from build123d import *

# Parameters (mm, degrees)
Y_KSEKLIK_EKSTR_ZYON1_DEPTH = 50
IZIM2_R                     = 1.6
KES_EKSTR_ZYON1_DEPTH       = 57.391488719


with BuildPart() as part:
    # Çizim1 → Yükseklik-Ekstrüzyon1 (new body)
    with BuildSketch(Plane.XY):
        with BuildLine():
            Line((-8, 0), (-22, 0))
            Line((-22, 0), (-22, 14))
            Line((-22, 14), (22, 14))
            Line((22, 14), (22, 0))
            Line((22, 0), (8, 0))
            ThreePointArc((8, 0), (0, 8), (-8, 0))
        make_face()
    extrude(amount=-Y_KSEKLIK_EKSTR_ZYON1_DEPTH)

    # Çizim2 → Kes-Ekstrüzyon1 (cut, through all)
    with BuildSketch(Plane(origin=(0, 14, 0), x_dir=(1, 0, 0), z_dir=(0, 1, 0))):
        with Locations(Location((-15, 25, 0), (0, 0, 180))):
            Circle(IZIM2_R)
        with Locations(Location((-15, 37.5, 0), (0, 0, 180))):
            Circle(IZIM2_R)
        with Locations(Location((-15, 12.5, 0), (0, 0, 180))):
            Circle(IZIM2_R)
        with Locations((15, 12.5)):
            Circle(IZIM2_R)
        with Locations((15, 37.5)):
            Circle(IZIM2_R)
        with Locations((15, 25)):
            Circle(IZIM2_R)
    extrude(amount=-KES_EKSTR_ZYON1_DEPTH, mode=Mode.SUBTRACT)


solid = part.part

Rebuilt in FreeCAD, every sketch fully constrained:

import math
import FreeCAD as App
import Part
import Sketcher
from FreeCAD import Vector

doc = App.newDocument("Part")
params = doc.addObject("Spreadsheet::Sheet", "Params")
for row, (alias, value) in enumerate([
    ("sketch1_radius", "8 mm"),
    ("sketch1_width", "14 mm"),
    ("pad1_length", "50 mm"),
    ("sketch2_diameter", "3.2 mm"),
], start=1):
    params.set(f"A{row}", alias)
    params.set(f"B{row}", "=" + value)
    params.setAlias(f"B{row}", alias)

body = doc.addObject("PartDesign::Body", "Body")

# Sketch on XY plane
sketch1 = body.newObject("Sketcher::SketchObject", "Sketch")
sketch1.AttachmentSupport = (doc.getObject("XY_Plane"), [""])
sketch1.MapMode = "FlatFace"
sketch1.addGeometry([
    Part.LineSegment(Vector(-22, 0, 0), Vector(-8, 0, 0)),  # 0
    Part.ArcOfCircle(Part.Circle(Vector(0, 0, 0), Vector(0, 0, 1), 8), math.radians(0), math.radians(180)),  # 1
    Part.LineSegment(Vector(8, 0, 0), Vector(22, 0, 0)),  # 2
    Part.LineSegment(Vector(22, 0, 0), Vector(22, 14, 0)),  # 3
    Part.LineSegment(Vector(22, 14, 0), Vector(-22, 14, 0)),  # 4
    Part.LineSegment(Vector(-22, 14, 0), Vector(-22, 0, 0)),  # 5
], False)
sketch1.addConstraint([
    Sketcher.Constraint("Coincident", 0, 2, 1, 2),
    Sketcher.Constraint("Coincident", 1, 1, 2, 1),
    Sketcher.Constraint("Coincident", 2, 2, 3, 1),
    Sketcher.Constraint("Coincident", 3, 2, 4, 1),
    Sketcher.Constraint("Coincident", 4, 2, 5, 1),
    Sketcher.Constraint("Coincident", 5, 2, 0, 1),
    Sketcher.Constraint("Horizontal", 0),
    Sketcher.Constraint("Horizontal", 2),
    Sketcher.Constraint("Vertical", 3),
    Sketcher.Constraint("Horizontal", 4),
    Sketcher.Constraint("Vertical", 5),
    Sketcher.Constraint("Coincident", 1, 3, -1, 1),
    Sketcher.Constraint("Symmetric", 2, 2, 5, 2, -1, 1),
    Sketcher.Constraint("PointOnObject", 0, 2, -1),
    Sketcher.Constraint("Equal", 2, 3),
    Sketcher.Constraint("Radius", 1, 8.0),
    Sketcher.Constraint("DistanceX", 0, 1, 0, 2, 14.0),
])
sketch1.setExpression("Constraints[15]", "Params.sketch1_radius")
sketch1.setExpression("Constraints[16]", "Params.sketch1_width")
pad1 = body.newObject("PartDesign::Pad", "Pad")
pad1.Profile = sketch1
pad1.setExpression("Length", "Params.pad1_length")
pad1.Reversed = True

# Sketch on XZ plane
sketch2 = body.newObject("Sketcher::SketchObject", "Sketch001")
sketch2.AttachmentSupport = (doc.getObject("XZ_Plane"), [""])
sketch2.MapMode = "FlatFace"
sketch2.AttachmentOffset = App.Placement(Vector(0, 0, -14), App.Rotation())
sketch2.addGeometry([
    Part.Circle(Vector(-15, -25, 0), Vector(0, 0, 1), 1.6),  # 0
    Part.Circle(Vector(-15, -37.5, 0), Vector(0, 0, 1), 1.6),  # 1
    Part.Circle(Vector(-15, -12.5, 0), Vector(0, 0, 1), 1.6),  # 2
    Part.Circle(Vector(15, -12.5, 0), Vector(0, 0, 1), 1.6),  # 3
    Part.Circle(Vector(15, -37.5, 0), Vector(0, 0, 1), 1.6),  # 4
    Part.Circle(Vector(15, -25, 0), Vector(0, 0, 1), 1.6),  # 5
], False)
sketch2.addConstraint([
    Sketcher.Constraint("Equal", 0, 1),
    Sketcher.Constraint("Equal", 1, 2),
    Sketcher.Constraint("Equal", 2, 3),
    Sketcher.Constraint("Equal", 3, 4),
    Sketcher.Constraint("Equal", 4, 5),
    Sketcher.Constraint("Symmetric", 2, 3, 3, 3, -2),
    Sketcher.Constraint("Symmetric", 1, 3, 4, 3, -2),
    Sketcher.Constraint("Symmetric", 0, 3, 5, 3, -2),
    Sketcher.Constraint("Vertical", 0, 3, 1, 3),
    Sketcher.Constraint("Vertical", 1, 3, 2, 3),
    Sketcher.Constraint("Diameter", 0, 3.2),
    Sketcher.Constraint("DistanceX", 0, 3, -1, 1, 15.0),
    Sketcher.Constraint("DistanceY", 0, 3, -1, 1, 25.0),
    Sketcher.Constraint("DistanceY", 1, 3, 2, 3, 25.0),
    Sketcher.Constraint("DistanceY", 1, 3, -1, 1, 37.5),
])
sketch2.setExpression("Constraints[10]", "Params.sketch2_diameter")
pocket1 = body.newObject("PartDesign::Pocket", "Pocket")
pocket1.Profile = sketch2
pocket1.Type = "ThroughAll"
pocket1.Reversed = True

doc.recompute()
